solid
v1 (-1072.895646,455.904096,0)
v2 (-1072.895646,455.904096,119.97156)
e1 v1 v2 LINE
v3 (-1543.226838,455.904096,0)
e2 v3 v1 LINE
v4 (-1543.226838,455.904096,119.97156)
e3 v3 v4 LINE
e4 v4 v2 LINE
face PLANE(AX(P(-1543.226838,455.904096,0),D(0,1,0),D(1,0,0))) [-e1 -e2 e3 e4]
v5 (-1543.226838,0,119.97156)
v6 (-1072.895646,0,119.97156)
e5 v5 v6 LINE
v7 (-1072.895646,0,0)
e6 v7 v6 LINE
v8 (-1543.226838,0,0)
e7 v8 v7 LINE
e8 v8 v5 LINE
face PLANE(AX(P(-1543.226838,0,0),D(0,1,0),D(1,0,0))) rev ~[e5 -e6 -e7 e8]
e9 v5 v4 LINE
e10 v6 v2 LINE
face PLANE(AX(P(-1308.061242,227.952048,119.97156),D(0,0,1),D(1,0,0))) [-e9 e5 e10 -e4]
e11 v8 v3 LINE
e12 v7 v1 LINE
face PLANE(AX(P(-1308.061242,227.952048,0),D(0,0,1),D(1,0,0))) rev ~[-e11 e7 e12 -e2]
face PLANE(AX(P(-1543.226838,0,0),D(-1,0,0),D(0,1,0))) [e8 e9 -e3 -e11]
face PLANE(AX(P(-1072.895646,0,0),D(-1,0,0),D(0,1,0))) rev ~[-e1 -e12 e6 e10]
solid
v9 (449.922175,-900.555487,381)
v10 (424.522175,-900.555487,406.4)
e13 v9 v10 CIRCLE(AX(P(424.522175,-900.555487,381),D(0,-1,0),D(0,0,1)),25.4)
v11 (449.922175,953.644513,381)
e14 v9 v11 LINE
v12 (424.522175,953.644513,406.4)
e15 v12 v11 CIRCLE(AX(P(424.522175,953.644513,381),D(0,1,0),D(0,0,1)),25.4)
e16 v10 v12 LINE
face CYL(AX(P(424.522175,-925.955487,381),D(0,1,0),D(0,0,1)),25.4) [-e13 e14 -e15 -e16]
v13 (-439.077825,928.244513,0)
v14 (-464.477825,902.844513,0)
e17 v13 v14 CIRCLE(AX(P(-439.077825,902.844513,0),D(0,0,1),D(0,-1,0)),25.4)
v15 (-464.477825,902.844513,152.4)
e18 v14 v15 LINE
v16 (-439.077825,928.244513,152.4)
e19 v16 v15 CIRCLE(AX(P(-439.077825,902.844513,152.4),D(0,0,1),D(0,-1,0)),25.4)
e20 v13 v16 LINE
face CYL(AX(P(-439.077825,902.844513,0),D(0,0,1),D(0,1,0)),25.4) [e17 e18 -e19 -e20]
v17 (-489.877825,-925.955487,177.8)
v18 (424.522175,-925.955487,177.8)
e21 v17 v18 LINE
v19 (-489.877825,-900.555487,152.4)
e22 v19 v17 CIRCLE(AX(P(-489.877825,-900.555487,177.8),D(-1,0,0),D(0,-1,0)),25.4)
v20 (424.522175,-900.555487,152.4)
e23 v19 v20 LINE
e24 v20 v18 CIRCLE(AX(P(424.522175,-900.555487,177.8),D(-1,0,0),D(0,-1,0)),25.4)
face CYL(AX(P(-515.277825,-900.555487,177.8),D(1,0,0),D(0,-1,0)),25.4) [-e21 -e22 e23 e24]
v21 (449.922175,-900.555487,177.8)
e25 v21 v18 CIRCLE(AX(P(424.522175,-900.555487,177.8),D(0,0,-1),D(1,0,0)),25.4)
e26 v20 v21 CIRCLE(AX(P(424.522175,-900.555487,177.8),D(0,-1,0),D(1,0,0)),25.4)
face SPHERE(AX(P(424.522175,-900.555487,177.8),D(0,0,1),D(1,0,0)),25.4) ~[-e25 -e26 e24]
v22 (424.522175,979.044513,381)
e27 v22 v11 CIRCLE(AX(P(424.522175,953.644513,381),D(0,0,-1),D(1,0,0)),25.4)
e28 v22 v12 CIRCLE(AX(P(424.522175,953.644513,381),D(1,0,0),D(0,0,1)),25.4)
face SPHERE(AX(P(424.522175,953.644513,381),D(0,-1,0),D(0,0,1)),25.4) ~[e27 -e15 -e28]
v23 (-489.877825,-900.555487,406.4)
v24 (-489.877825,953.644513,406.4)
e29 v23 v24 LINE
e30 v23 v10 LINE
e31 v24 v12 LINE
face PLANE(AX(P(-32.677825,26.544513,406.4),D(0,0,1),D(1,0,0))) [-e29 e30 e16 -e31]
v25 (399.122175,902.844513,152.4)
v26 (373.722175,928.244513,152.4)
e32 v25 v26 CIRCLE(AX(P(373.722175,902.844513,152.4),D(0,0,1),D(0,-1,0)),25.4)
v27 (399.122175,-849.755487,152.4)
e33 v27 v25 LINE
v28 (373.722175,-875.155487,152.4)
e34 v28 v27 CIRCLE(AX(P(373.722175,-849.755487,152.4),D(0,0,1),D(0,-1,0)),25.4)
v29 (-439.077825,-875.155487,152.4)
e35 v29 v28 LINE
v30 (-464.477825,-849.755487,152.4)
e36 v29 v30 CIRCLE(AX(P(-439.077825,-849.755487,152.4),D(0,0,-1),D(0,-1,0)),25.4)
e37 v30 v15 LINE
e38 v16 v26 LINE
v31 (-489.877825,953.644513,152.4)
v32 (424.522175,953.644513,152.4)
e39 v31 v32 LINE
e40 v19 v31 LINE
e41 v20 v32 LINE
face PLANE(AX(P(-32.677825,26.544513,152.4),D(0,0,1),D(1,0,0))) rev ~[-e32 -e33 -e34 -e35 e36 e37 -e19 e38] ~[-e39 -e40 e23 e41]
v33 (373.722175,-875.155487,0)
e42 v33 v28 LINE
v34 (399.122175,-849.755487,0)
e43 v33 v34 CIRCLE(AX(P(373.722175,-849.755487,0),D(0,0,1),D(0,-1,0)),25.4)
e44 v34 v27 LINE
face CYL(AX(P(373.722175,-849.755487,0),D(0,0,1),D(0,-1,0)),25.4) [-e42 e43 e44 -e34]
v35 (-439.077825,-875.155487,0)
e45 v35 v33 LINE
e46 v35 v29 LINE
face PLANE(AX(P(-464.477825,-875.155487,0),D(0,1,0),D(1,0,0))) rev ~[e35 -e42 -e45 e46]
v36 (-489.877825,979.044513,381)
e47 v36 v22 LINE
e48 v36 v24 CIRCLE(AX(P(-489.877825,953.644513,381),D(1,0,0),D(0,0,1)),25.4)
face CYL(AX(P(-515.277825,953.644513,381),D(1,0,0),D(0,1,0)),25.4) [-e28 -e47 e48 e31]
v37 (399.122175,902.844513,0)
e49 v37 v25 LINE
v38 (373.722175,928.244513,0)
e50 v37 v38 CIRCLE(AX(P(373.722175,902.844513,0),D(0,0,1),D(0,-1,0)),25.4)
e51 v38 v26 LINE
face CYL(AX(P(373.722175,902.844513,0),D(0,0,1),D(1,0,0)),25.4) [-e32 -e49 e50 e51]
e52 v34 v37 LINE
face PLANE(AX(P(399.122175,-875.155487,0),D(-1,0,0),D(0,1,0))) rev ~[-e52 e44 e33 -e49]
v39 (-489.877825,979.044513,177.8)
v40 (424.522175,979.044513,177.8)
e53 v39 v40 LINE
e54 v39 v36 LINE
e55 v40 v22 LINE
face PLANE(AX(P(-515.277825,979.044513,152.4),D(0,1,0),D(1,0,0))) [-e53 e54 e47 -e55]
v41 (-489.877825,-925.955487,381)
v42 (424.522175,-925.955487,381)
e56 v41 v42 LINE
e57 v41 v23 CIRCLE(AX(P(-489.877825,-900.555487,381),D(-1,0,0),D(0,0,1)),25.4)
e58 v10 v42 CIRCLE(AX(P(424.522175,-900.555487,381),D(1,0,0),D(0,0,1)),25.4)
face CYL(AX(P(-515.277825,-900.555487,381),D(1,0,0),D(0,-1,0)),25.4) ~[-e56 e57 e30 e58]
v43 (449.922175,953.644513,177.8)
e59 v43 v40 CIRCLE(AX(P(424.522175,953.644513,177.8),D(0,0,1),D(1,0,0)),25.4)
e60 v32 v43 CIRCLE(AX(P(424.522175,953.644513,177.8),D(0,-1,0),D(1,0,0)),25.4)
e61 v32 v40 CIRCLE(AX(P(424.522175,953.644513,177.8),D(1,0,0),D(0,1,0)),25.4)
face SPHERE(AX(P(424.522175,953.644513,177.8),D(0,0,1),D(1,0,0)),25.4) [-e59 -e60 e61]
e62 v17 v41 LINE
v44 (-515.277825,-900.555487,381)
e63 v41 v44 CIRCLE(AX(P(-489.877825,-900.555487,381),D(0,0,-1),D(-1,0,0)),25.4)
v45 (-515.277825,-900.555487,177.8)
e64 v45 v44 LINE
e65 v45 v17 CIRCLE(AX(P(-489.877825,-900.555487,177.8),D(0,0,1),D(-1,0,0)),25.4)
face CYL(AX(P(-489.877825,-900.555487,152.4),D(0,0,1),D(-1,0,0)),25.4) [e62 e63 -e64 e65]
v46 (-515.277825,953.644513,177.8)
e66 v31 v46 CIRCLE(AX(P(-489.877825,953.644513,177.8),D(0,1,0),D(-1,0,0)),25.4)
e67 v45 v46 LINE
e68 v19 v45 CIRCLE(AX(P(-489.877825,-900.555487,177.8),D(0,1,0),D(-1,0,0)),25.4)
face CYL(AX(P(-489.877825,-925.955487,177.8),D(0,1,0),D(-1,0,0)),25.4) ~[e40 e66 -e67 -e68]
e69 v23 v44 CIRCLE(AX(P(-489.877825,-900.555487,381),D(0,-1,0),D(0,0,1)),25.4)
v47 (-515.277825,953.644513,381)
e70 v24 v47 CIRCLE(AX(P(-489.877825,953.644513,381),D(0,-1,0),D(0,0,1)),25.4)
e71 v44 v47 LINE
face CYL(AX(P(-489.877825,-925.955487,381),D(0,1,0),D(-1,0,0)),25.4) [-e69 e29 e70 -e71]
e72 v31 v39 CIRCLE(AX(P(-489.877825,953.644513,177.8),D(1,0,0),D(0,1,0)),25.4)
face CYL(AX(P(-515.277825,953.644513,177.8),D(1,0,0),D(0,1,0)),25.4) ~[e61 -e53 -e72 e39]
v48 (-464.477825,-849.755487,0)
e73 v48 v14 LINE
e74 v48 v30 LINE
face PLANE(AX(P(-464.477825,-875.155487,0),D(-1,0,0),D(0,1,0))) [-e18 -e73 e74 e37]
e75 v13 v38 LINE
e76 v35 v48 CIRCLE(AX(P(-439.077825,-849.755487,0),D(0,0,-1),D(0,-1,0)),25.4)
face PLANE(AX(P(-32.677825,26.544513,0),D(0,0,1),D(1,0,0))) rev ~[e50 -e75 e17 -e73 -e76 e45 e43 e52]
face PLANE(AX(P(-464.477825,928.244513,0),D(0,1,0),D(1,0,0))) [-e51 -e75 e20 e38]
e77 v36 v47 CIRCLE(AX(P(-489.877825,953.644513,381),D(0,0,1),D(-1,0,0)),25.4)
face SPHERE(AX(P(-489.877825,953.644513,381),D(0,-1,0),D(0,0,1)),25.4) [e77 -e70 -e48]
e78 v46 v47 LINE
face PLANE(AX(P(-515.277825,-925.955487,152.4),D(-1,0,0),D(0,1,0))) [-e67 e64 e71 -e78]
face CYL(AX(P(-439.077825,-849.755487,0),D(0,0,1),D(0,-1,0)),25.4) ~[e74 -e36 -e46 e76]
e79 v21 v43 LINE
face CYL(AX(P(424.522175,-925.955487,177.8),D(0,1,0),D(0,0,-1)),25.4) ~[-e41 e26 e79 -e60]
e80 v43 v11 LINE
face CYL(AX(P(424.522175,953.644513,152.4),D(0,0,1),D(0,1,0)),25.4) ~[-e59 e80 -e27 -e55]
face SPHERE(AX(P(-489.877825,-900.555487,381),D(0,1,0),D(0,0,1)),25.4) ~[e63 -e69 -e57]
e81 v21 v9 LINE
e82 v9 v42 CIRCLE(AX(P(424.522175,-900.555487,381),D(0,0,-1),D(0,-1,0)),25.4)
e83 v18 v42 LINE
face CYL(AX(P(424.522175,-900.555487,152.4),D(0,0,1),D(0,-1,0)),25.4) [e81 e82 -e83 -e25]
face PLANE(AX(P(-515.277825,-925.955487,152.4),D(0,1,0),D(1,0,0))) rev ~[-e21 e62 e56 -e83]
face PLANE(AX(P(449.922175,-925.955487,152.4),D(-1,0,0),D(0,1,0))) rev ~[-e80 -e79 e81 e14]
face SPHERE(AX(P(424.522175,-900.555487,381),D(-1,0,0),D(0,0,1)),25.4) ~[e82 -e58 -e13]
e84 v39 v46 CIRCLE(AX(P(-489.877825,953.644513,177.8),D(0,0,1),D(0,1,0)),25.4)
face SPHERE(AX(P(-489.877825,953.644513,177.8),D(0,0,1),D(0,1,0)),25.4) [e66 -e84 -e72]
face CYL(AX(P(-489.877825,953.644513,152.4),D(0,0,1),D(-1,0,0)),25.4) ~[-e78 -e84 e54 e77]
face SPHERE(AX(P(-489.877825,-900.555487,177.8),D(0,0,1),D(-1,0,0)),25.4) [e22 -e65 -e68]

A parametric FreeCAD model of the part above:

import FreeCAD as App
import Part
import Sketcher
Q = App.Units.Quantity


def edges_at(feature, points):
    """Names of the edges that pass closest to the given points."""
    edges = feature.Shape.Edges
    near = lambda p: min(range(len(edges)), key=lambda i: edges[i].distToShape(Part.Vertex(*p))[0])
    return sorted({f"Edge{near(p) + 1}" for p in points})

doc = App.newDocument("Part")
body = doc.addObject("PartDesign::Body", "Body")

sketch1 = body.newObject("Sketcher::SketchObject", "Sketch")
sketch1.AttachmentSupport = (doc.getObject("XY_Plane"), [""])
sketch1.MapMode = "FlatFace"
sketch1.addGeometry([
    Part.LineSegment(App.Vector(-464, 928, 0), App.Vector(-464, -875, 0)),
    Part.LineSegment(App.Vector(-464, -875, 0), App.Vector(399, -875, 0)),
    Part.LineSegment(App.Vector(399, -875, 0), App.Vector(399, 928, 0)),
    Part.LineSegment(App.Vector(399, 928, 0), App.Vector(-464, 928, 0)),
], False)
sketch1.addConstraint([
    Sketcher.Constraint("Coincident", 0, 2, 1, 1),
    Sketcher.Constraint("Coincident", 1, 2, 2, 1),
    Sketcher.Constraint("Coincident", 2, 2, 3, 1),
    Sketcher.Constraint("Coincident", 3, 2, 0, 1),
    Sketcher.Constraint("Vertical", 0),
    Sketcher.Constraint("Horizontal", 1),
    Sketcher.Constraint("Vertical", 2),
    Sketcher.Constraint("Horizontal", 3),
    Sketcher.Constraint("DistanceX", 1, 1, 1, 2, Q("34 in")),
    Sketcher.Constraint("DistanceY", 0, 2, 0, 1, Q("71 in")),
    Sketcher.Constraint("DistanceX", 0, 2, -1, 1, Q("464.477825 mm")),
    Sketcher.Constraint("DistanceY", 0, 2, -1, 1, Q("875.155487 mm")),
])
pad1 = body.newObject("PartDesign::Pad", "Pad")
pad1.Profile = sketch1
pad1.Length = Q("6 in")

sketch2 = body.newObject("Sketcher::SketchObject", "Sketch001")
sketch2.AttachmentSupport = (doc.getObject("XY_Plane"), [""])
sketch2.MapMode = "FlatFace"
sketch2.AttachmentOffset = App.Placement(App.Vector(0, 0, 6 * 25.4), App.Rotation())
sketch2.addGeometry([
    Part.LineSegment(App.Vector(-515, 979, 0), App.Vector(-515, -926, 0)),
    Part.LineSegment(App.Vector(-515, -926, 0), App.Vector(450, -926, 0)),
    Part.LineSegment(App.Vector(450, -926, 0), App.Vector(450, 979, 0)),
    Part.LineSegment(App.Vector(450, 979, 0), App.Vector(-515, 979, 0)),
], False)
sketch2.addConstraint([
    Sketcher.Constraint("Coincident", 0, 2, 1, 1),
    Sketcher.Constraint("Coincident", 1, 2, 2, 1),
    Sketcher.Constraint("Coincident", 2, 2, 3, 1),
    Sketcher.Constraint("Coincident", 3, 2, 0, 1),
    Sketcher.Constraint("Vertical", 0),
    Sketcher.Constraint("Horizontal", 1),
    Sketcher.Constraint("Vertical", 2),
    Sketcher.Constraint("Horizontal", 3),
    Sketcher.Constraint("DistanceX", 1, 1, 1, 2, Q("38 in")),
    Sketcher.Constraint("DistanceY", 0, 2, 0, 1, Q("75 in")),
    Sketcher.Constraint("DistanceX", 0, 2, -1, 1, Q("515.277825 mm")),
    Sketcher.Constraint("DistanceY", 0, 2, -1, 1, Q("925.955487 mm")),
])
pad2 = body.newObject("PartDesign::Pad", "Pad001")
pad2.Profile = sketch2
pad2.Length = Q("10 in")
doc.recompute()

fillet = body.newObject("PartDesign::Fillet", "Fillet")
fillet.Base = (pad2, edges_at(pad2, [
    (-515.278, 26.545, 406.4),
    (-32.678, -925.955, 406.4),
    (449.922, 26.545, 406.4),
    (-32.678, 979.045, 406.4),
    (449.922, -925.955, 279.4),
    (449.922, 979.045, 279.4),
    (449.922, 26.545, 152.4),
    (-515.278, 979.045, 279.4),
    (-32.678, 979.045, 152.4),
    (-515.278, -925.955, 279.4),
    (-515.278, 26.545, 152.4),
    (-32.678, -925.955, 152.4),
    (399.122, -875.155, 76.2),
    (399.122, 928.245, 76.2),
    (-464.478, 928.245, 76.2),
    (-464.478, -875.155, 76.2),
]))
fillet.Radius = Q("1 in")
body2 = doc.addObject("PartDesign::Body", "Body001")

sketch3 = body2.newObject("Sketcher::SketchObject", "Sketch002")
sketch3.AttachmentSupport = (doc.getObject("XY_Plane001"), [""])
sketch3.MapMode = "FlatFace"
sketch3.addGeometry([
    Part.LineSegment(App.Vector(-1543, 456, 0), App.Vector(-1543, 0, 0)),
    Part.LineSegment(App.Vector(-1543, 0, 0), App.Vector(-1073, 0, 0)),
    Part.LineSegment(App.Vector(-1073, 0, 0), App.Vector(-1073, 456, 0)),
    Part.LineSegment(App.Vector(-1073, 456, 0), App.Vector(-1543, 456, 0)),
], False)
sketch3.addConstraint([
    Sketcher.Constraint("Coincident", 0, 2, 1, 1),
    Sketcher.Constraint("Coincident", 1, 2, 2, 1),
    Sketcher.Constraint("Coincident", 2, 2, 3, 1),
    Sketcher.Constraint("Coincident", 3, 2, 0, 1),
    Sketcher.Constraint("Vertical", 0),
    Sketcher.Constraint("Horizontal", 1),
    Sketcher.Constraint("Vertical", 2),
    Sketcher.Constraint("Horizontal", 3),
    Sketcher.Constraint("PointOnObject", 0, 2, -1),
    Sketcher.Constraint("DistanceX", 1, 1, 1, 2, Q("470.331192 mm")),
    Sketcher.Constraint("DistanceY", 0, 2, 0, 1, Q("455.904096 mm")),
    Sketcher.Constraint("DistanceX", 0, 2, -1, 1, Q("1543.226838 mm")),
])
pad3 = body2.newObject("PartDesign::Pad", "Pad002")
pad3.Profile = sketch3
pad3.Length = 119.97156

doc.recompute()
